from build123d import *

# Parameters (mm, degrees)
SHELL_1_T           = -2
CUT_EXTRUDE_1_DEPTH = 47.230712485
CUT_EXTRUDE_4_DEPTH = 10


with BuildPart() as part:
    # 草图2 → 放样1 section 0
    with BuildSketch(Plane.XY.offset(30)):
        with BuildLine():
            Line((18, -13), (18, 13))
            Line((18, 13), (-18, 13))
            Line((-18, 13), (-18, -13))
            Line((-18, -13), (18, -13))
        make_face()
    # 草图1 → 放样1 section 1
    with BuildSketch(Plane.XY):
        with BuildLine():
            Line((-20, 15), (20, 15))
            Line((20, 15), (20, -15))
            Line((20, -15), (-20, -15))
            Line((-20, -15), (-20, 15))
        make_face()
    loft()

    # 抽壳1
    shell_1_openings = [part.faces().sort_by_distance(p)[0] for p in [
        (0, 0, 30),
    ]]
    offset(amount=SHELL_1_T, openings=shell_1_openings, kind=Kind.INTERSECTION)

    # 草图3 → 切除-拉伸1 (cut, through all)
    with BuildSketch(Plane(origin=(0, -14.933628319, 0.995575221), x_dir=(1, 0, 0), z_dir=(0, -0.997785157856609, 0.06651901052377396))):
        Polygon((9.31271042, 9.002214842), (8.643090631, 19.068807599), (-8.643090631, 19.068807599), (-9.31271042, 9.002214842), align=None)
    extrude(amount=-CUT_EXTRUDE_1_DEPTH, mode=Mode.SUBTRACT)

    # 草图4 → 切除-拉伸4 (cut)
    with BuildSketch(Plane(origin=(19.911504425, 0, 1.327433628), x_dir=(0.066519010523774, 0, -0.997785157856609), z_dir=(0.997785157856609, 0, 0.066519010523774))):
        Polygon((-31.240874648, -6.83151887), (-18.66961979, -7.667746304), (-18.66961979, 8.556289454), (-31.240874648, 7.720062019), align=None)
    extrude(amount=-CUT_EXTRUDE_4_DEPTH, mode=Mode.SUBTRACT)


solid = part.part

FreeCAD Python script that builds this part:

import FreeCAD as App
import Part
import Sketcher
Q = App.Units.Quantity


def faces_at(feature, points):
    """Names of the faces that lie closest to the given points."""
    faces = feature.Shape.Faces
    near = lambda p: min(range(len(faces)), key=lambda i: faces[i].distToShape(Part.Vertex(*p))[0])
    return sorted({f"Face{near(p) + 1}" for p in points})


def add_polygon(sketch, points):
    """Adds a closed chain of lines whose ends are joined by coincident constraints."""
    first, n = sketch.GeometryCount, len(points)
    for a, b in zip(points, points[1:] + points[:1]):
        sketch.addGeometry(Part.LineSegment(App.Vector(*a, 0), App.Vector(*b, 0)), False)
    for i in range(n):
        sketch.addConstraint(Sketcher.Constraint("Coincident", first + i, 2, first + (i + 1) % n, 1))

doc = App.newDocument("Part")
params = doc.addObject("Spreadsheet::Sheet", "Params")
for row, (alias, value) in enumerate([
    ("sketch1_width", "36 mm"),
    ("sketch1_height", "26 mm"),
    ("sketch2_width", "40 mm"),
    ("sketch2_height", "30 mm"),
    ("thickness_wall", "2 mm"),
    ("pocket2_length", "10 mm"),
], start=1):
    params.set(f"A{row}", alias)
    params.set(f"B{row}", "=" + value)
    params.setAlias(f"B{row}", alias)

body = doc.addObject("PartDesign::Body", "Body")

# Sketch on XY plane
sketch1 = body.newObject("Sketcher::SketchObject", "Sketch")
sketch1.AttachmentSupport = (doc.getObject("XY_Plane"), [""])
sketch1.MapMode = "FlatFace"
sketch1.AttachmentOffset = App.Placement(App.Vector(0, 0, 30), App.Rotation())
add_polygon(sketch1, [(18, -13), (18, 13), (-18, 13), (-18, -13)])  # lines 0-3
sketch1.addConstraint(Sketcher.Constraint("Vertical", 0))
sketch1.addConstraint(Sketcher.Constraint("Horizontal", 1))
sketch1.addConstraint(Sketcher.Constraint("Vertical", 2))
sketch1.addConstraint(Sketcher.Constraint("Horizontal", 3))
sketch1.addConstraint(Sketcher.Constraint("Symmetric", 0, 2, 2, 2, -1, 1))
sketch1.addConstraint(Sketcher.Constraint("DistanceX", 1, 2, 1, 1, Q("36 mm")))
sketch1.addConstraint(Sketcher.Constraint("DistanceY", 0, 1, 0, 2, Q("26 mm")))
sketch1.setExpression("Constraints[9]", "Params.sketch1_width")
sketch1.setExpression("Constraints[10]", "Params.sketch1_height")

# Sketch on XY plane
sketch2 = body.newObject("Sketcher::SketchObject", "Sketch001")
sketch2.AttachmentSupport = (doc.getObject("XY_Plane"), [""])
sketch2.MapMode = "FlatFace"
add_polygon(sketch2, [(20, 15), (-20, 15), (-20, -15), (20, -15)])  # lines 0-3
sketch2.addConstraint(Sketcher.Constraint("Horizontal", 0))
sketch2.addConstraint(Sketcher.Constraint("Vertical", 1))
sketch2.addConstraint(Sketcher.Constraint("Horizontal", 2))
sketch2.addConstraint(Sketcher.Constraint("Vertical", 3))
sketch2.addConstraint(Sketcher.Constraint("Symmetric", 0, 2, 2, 2, -1, 1))
sketch2.addConstraint(Sketcher.Constraint("DistanceX", 0, 2, 0, 1, Q("40 mm")))
sketch2.addConstraint(Sketcher.Constraint("DistanceY", 1, 2, 1, 1, Q("30 mm")))
sketch2.setExpression("Constraints[9]", "Params.sketch2_width")
sketch2.setExpression("Constraints[10]", "Params.sketch2_height")

additiveloft = body.newObject("PartDesign::AdditiveLoft", "AdditiveLoft")
additiveloft.Profile = sketch1
additiveloft.Sections = [sketch2]
doc.recompute()

thickness = body.newObject("PartDesign::Thickness", "Thickness")
thickness.Base = (additiveloft, faces_at(additiveloft, [(0, 0, 30)]))
thickness.setExpression("Value", "Params.thickness_wall")
thickness.Reversed = True
thickness.Join = "Intersection"

# Sketch on an angled plane
sketch3 = body.newObject("Sketcher::SketchObject", "Sketch002")
sketch3.Placement = App.Placement(App.Vector(0, -14.933628, 0.995575), App.Rotation(App.Vector(1, 0, 0), App.Vector(0, 0.066519011, 0.997785158), App.Vector(0, -0.997785158, 0.066519011), "ZXY"))
add_polygon(sketch3, [(9.31271, 9.002215), (8.643091, 19.068808), (-8.643091, 19.068808), (-9.31271, 9.002215)])  # lines 0-3
sketch3.addConstraint(Sketcher.Constraint("Horizontal", 1))
sketch3.addConstraint(Sketcher.Constraint("Horizontal", 3))
sketch3.addConstraint(Sketcher.Constraint("Equal", 0, 2))
sketch3.addConstraint(Sketcher.Constraint("DistanceX", 1, 2, 1, 1, Q("17.286181 mm")))
sketch3.addConstraint(Sketcher.Constraint("DistanceX", 3, 1, 3, 2, Q("18.625421 mm")))
sketch3.addConstraint(Sketcher.Constraint("Distance", 0, Q("10.088839 mm")))
sketch3.addConstraint(Sketcher.Constraint("DistanceX", -1, 1, 0, 2, Q("8.643091 mm")))
sketch3.addConstraint(Sketcher.Constraint("DistanceY", -1, 1, 0, 2, Q("19.068808 mm")))
pocket1 = body.newObject("PartDesign::Pocket", "Pocket")
pocket1.Profile = sketch3
pocket1.Type = "ThroughAll"

# Sketch on an angled plane
sketch4 = body.newObject("Sketcher::SketchObject", "Sketch003")
sketch4.Placement = App.Placement(App.Vector(19.911504, 0, 1.327434), App.Rotation(App.Vector(0.066519011, 0, -0.997785158), App.Vector(0, 1, 0), App.Vector(0.997785158, 0, 0.066519011), "ZXY"))
add_polygon(sketch4, [(-31.240875, -6.831519), (-18.66962, -7.667746), (-18.66962, 8.556289), (-31.240875, 7.720062)])  # lines 0-3
sketch4.addConstraint(Sketcher.Constraint("Vertical", 1))
sketch4.addConstraint(Sketcher.Constraint("Vertical", 3))
sketch4.addConstraint(Sketcher.Constraint("Equal", 0, 2))
sketch4.addConstraint(Sketcher.Constraint("DistanceY", 3, 2, 3, 1, Q("14.551581 mm")))
sketch4.addConstraint(Sketcher.Constraint("DistanceY", 1, 1, 1, 2, Q("16.224036 mm")))
sketch4.addConstraint(Sketcher.Constraint("DistanceX", 0, 2, -1, 1, Q("18.66962 mm")))
sketch4.addConstraint(Sketcher.Constraint("DistanceY", -1, 1, 1, 2, Q("8.556289 mm")))
sketch4.addConstraint(Sketcher.Constraint("Distance", 0, Q("12.599037 mm")))
pocket2 = body.newObject("PartDesign::Pocket", "Pocket001")
pocket2.Profile = sketch4
pocket2.setExpression("Length", "Params.pocket2_length")

doc.recompute()
